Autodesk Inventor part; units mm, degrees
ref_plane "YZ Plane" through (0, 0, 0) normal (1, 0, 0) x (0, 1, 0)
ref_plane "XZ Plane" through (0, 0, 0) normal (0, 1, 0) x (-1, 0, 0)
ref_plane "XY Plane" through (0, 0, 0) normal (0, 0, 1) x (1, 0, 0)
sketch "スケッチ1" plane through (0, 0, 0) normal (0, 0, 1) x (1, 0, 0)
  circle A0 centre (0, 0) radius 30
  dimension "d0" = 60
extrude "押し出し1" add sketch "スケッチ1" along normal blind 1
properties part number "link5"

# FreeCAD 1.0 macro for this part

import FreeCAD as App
import Part
import Sketcher
from FreeCAD import Vector
Q = App.Units.Quantity

doc = App.newDocument("Part")
body = doc.addObject("PartDesign::Body", "Body")

sketch1 = doc.addObject("Sketcher::SketchObject", "Sketch")
body.addObject(sketch1)
sketch1.AttachmentSupport = (doc.XY_Plane, [""])
sketch1.MapMode = "FlatFace"
sketch1.addGeometry(Part.Circle(Vector(0, 0, 0), Vector(0, 0, 1), 30), False)
sketch1.addConstraint(Sketcher.Constraint("Coincident", 0, 3, -1, 1))
sketch1.addConstraint(Sketcher.Constraint("Diameter", 0, Q("60 mm")))
pad1 = doc.addObject("PartDesign::Pad", "Pad")
body.addObject(pad1)
pad1.Profile = sketch1
pad1.Length = 1

doc.recompute()
